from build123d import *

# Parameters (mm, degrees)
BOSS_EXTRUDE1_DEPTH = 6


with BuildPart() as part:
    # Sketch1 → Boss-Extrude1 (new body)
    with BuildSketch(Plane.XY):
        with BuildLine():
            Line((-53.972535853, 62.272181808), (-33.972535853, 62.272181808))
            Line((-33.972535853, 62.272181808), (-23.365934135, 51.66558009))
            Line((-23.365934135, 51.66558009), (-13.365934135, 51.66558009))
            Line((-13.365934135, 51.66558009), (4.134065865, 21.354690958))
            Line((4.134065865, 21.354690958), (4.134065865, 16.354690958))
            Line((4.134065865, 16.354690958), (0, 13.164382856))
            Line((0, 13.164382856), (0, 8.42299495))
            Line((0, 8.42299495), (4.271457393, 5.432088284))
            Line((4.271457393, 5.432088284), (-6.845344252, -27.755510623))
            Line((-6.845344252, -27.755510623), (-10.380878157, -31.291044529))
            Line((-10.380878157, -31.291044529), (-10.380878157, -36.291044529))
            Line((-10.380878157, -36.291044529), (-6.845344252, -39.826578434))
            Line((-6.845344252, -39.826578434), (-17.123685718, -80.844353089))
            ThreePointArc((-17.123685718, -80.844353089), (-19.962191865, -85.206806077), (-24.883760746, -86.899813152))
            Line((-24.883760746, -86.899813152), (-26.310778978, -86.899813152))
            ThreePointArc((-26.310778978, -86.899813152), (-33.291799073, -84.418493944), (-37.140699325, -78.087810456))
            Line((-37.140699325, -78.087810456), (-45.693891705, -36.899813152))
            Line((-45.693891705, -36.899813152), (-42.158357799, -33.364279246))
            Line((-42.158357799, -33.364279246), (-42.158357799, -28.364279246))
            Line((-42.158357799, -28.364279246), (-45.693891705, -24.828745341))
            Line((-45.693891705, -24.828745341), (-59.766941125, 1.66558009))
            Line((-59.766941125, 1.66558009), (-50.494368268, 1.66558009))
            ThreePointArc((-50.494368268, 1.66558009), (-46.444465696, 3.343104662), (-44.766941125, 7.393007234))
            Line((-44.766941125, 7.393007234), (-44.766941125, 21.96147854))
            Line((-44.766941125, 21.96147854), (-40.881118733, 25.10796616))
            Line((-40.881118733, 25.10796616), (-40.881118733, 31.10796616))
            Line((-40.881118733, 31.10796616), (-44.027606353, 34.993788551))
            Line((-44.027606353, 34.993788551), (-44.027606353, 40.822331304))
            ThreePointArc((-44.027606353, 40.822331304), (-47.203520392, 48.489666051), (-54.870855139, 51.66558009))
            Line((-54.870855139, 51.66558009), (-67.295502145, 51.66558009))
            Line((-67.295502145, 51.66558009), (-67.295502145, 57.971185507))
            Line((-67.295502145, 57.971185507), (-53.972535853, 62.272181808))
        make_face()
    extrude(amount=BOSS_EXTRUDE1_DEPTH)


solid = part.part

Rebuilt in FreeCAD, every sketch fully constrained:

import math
import FreeCAD as App
import Part
import Sketcher
Q = App.Units.Quantity

doc = App.newDocument("Part")
body = doc.addObject("PartDesign::Body", "Body")

# Sketch on XY plane
sketch1 = body.newObject("Sketcher::SketchObject", "Sketch")
sketch1.AttachmentSupport = (doc.getObject("XY_Plane"), [""])
sketch1.MapMode = "FlatFace"
sketch1.addGeometry([
    Part.LineSegment(App.Vector(-34, 62.3, 0), App.Vector(-54, 62.3, 0)),  # 0
    Part.LineSegment(App.Vector(-54, 62.3, 0), App.Vector(-67.3, 58, 0)),  # 1
    Part.LineSegment(App.Vector(-67.3, 58, 0), App.Vector(-67.3, 51.7, 0)),  # 2
    Part.LineSegment(App.Vector(-67.3, 51.7, 0), App.Vector(-54.9, 51.7, 0)),  # 3
    Part.ArcOfCircle(Part.Circle(App.Vector(-54.9, 40.8, 0), App.Vector(0, 0, 1), 10.8), math.radians(0), math.radians(90)),  # 4
    Part.LineSegment(App.Vector(-44, 40.8, 0), App.Vector(-44, 35, 0)),  # 5
    Part.LineSegment(App.Vector(-44, 35, 0), App.Vector(-40.9, 31.1, 0)),  # 6
    Part.LineSegment(App.Vector(-40.9, 31.1, 0), App.Vector(-40.9, 25.1, 0)),  # 7
    Part.LineSegment(App.Vector(-40.9, 25.1, 0), App.Vector(-44.8, 22, 0)),  # 8
    Part.LineSegment(App.Vector(-44.8, 22, 0), App.Vector(-44.8, 7.4, 0)),  # 9
    Part.ArcOfCircle(Part.Circle(App.Vector(-50.5, 7.4, 0), App.Vector(0, 0, 1), 5.7), math.radians(-90), math.radians(0)),  # 10
    Part.LineSegment(App.Vector(-50.5, 1.7, 0), App.Vector(-59.8, 1.7, 0)),  # 11
    Part.LineSegment(App.Vector(-59.8, 1.7, 0), App.Vector(-45.7, -24.8, 0)),  # 12
    Part.LineSegment(App.Vector(-45.7, -24.8, 0), App.Vector(-42.2, -28.4, 0)),  # 13
    Part.LineSegment(App.Vector(-42.2, -28.4, 0), App.Vector(-42.2, -33.4, 0)),  # 14
    Part.LineSegment(App.Vector(-42.2, -33.4, 0), App.Vector(-45.7, -36.9, 0)),  # 15
    Part.LineSegment(App.Vector(-45.7, -36.9, 0), App.Vector(-37.1, -78.1, 0)),  # 16
    Part.ArcOfCircle(Part.Circle(App.Vector(-26.3, -75.8, 0), App.Vector(0, 0, 1), 11.1), math.radians(-168), math.radians(-90)),  # 17
    Part.LineSegment(App.Vector(-26.3, -86.9, 0), App.Vector(-24.9, -86.9, 0)),  # 18
    Part.ArcOfCircle(Part.Circle(App.Vector(-24.9, -78.9, 0), App.Vector(0, 0, 1), 8), math.radians(-90), math.radians(-14)),  # 19
    Part.LineSegment(App.Vector(-17.1, -80.8, 0), App.Vector(-6.8, -39.8, 0)),  # 20
    Part.LineSegment(App.Vector(-6.8, -39.8, 0), App.Vector(-10.4, -36.3, 0)),  # 21
    Part.LineSegment(App.Vector(-10.4, -36.3, 0), App.Vector(-10.4, -31.3, 0)),  # 22
    Part.LineSegment(App.Vector(-10.4, -31.3, 0), App.Vector(-6.8, -27.8, 0)),  # 23
    Part.LineSegment(App.Vector(-6.8, -27.8, 0), App.Vector(4.3, 5.4, 0)),  # 24
    Part.LineSegment(App.Vector(4.3, 5.4, 0), App.Vector(0, 8.4, 0)),  # 25
    Part.LineSegment(App.Vector(0, 8.4, 0), App.Vector(0, 13.2, 0)),  # 26
    Part.LineSegment(App.Vector(0, 13.2, 0), App.Vector(4.1, 16.4, 0)),  # 27
    Part.LineSegment(App.Vector(4.1, 16.4, 0), App.Vector(4.1, 21.4, 0)),  # 28
    Part.LineSegment(App.Vector(4.1, 21.4, 0), App.Vector(-13.4, 51.7, 0)),  # 29
    Part.LineSegment(App.Vector(-13.4, 51.7, 0), App.Vector(-23.4, 51.7, 0)),  # 30
    Part.LineSegment(App.Vector(-23.4, 51.7, 0), App.Vector(-34, 62.3, 0)),  # 31
], False)
sketch1.addConstraint([
    Sketcher.Constraint("Coincident", 0, 2, 1, 1),
    Sketcher.Constraint("Coincident", 1, 2, 2, 1),
    Sketcher.Constraint("Coincident", 2, 2, 3, 1),
    Sketcher.Constraint("Tangent", 3, 2, 4, 2),
    Sketcher.Constraint("Tangent", 4, 1, 5, 1),
    Sketcher.Constraint("Coincident", 5, 2, 6, 1),
    Sketcher.Constraint("Coincident", 6, 2, 7, 1),
    Sketcher.Constraint("Coincident", 7, 2, 8, 1),
    Sketcher.Constraint("Coincident", 8, 2, 9, 1),
    Sketcher.Constraint("Tangent", 9, 2, 10, 2),
    Sketcher.Constraint("Tangent", 10, 1, 11, 1),
    Sketcher.Constraint("Coincident", 11, 2, 12, 1),
    Sketcher.Constraint("Coincident", 12, 2, 13, 1),
    Sketcher.Constraint("Coincident", 13, 2, 14, 1),
    Sketcher.Constraint("Coincident", 14, 2, 15, 1),
    Sketcher.Constraint("Coincident", 15, 2, 16, 1),
    Sketcher.Constraint("Tangent", 16, 2, 17, 1),
    Sketcher.Constraint("Tangent", 17, 2, 18, 1),
    Sketcher.Constraint("Tangent", 18, 2, 19, 1),
    Sketcher.Constraint("Tangent", 19, 2, 20, 1),
    Sketcher.Constraint("Coincident", 20, 2, 21, 1),
    Sketcher.Constraint("Coincident", 21, 2, 22, 1),
    Sketcher.Constraint("Coincident", 22, 2, 23, 1),
    Sketcher.Constraint("Coincident", 23, 2, 24, 1),
    Sketcher.Constraint("Coincident", 24, 2, 25, 1),
    Sketcher.Constraint("Coincident", 25, 2, 26, 1),
    Sketcher.Constraint("Coincident", 26, 2, 27, 1),
    Sketcher.Constraint("Coincident", 27, 2, 28, 1),
    Sketcher.Constraint("Coincident", 28, 2, 29, 1),
    Sketcher.Constraint("Coincident", 29, 2, 30, 1),
    Sketcher.Constraint("Coincident", 30, 2, 31, 1),
    Sketcher.Constraint("Coincident", 31, 2, 0, 1),
    Sketcher.Constraint("Horizontal", 0),
    Sketcher.Constraint("Vertical", 2),
    Sketcher.Constraint("Horizontal", 3),
    Sketcher.Constraint("Vertical", 5),
    Sketcher.Constraint("Vertical", 7),
    Sketcher.Constraint("Vertical", 9),
    Sketcher.Constraint("Horizontal", 11),
    Sketcher.Constraint("Vertical", 14),
    Sketcher.Constraint("Horizontal", 18),
    Sketcher.Constraint("Vertical", 22),
    Sketcher.Constraint("Vertical", 26),
    Sketcher.Constraint("Vertical", 28),
    Sketcher.Constraint("Horizontal", 30),
    Sketcher.Constraint("PointOnObject", 25, 2, -2),
    Sketcher.Constraint("Perpendicular", 6, 8),
    Sketcher.Constraint("Perpendicular", 13, 15),
    Sketcher.Constraint("Perpendicular", 15, 21),
    Sketcher.Constraint("Perpendicular", 21, 23),
    Sketcher.Constraint("Perpendicular", 23, 31),
    Sketcher.Constraint("Horizontal", 3, 2, 29, 2),
    Sketcher.Constraint("Vertical", 12, 2, 15, 2),
    Sketcher.Constraint("Vertical", 20, 2, 23, 2),
    Sketcher.Constraint("Equal", 14, 22),
    Sketcher.Constraint("Equal", 22, 28),
    Sketcher.Constraint("Equal", 6, 8),
    Sketcher.Constraint("Equal", 8, 13),
    Sketcher.Constraint("Equal", 13, 15),
    Sketcher.Constraint("Equal", 15, 21),
    Sketcher.Constraint("Equal", 24, 29),
    Sketcher.Constraint("Radius", 19, Q("8 mm")),
    Sketcher.Constraint("DistanceX", 0, 2, 0, 1, Q("20 mm")),
    Sketcher.Constraint("DistanceX", 30, 2, 30, 1, Q("10 mm")),
    Sketcher.Constraint("DistanceY", 7, 2, 7, 1, Q("6 mm")),
    Sketcher.Constraint("DistanceY", 14, 2, 14, 1, Q("5 mm")),
    Sketcher.Constraint("Angle", 25, Q("145 deg")),
    Sketcher.Constraint("Angle", 29, Q("120 deg")),
    Sketcher.Constraint("Distance", 1, Q("14 mm")),
    Sketcher.Constraint("Distance", 6, Q("5 mm")),
    Sketcher.Constraint("Distance", 12, Q("30 mm")),
    Sketcher.Constraint("Distance", 24, Q("35 mm")),
    Sketcher.Constraint("Distance", 31, Q("15 mm")),
    Sketcher.Constraint("DistanceX", 11, 2, 9, 2, Q("15 mm")),
    Sketcher.Constraint("DistanceY", 17, 2, 15, 2, Q("50 mm")),
    Sketcher.Constraint("Radius", 4, Q("10.843249 mm")),
    Sketcher.Constraint("Radius", 17, Q("11.060968 mm")),
    Sketcher.Constraint("Radius", 10, Q("5.727427 mm")),
    Sketcher.Constraint("DistanceY", 19, 3, 1, 2, Q("136.870999 mm")),
    Sketcher.Constraint("DistanceX", 18, 1, 18, 2, Q("1.427018 mm")),
    Sketcher.Constraint("DistanceY", 9, 2, 9, 1, Q("14.568471 mm")),
    Sketcher.Constraint("DistanceX", 16, 2, -1, 1, Q("37.140699 mm")),
    Sketcher.Constraint("DistanceY", 20, 2, 14, 2, Q("6.462299 mm")),
    Sketcher.Constraint("DistanceX", 23, 2, 24, 2, Q("11.116802 mm")),
    Sketcher.Constraint("DistanceX", 9, 2, 24, 2, Q("49.038399 mm")),
    Sketcher.Constraint("DistanceY", 23, 2, 27, 2, Q("44.110202 mm")),
    Sketcher.Constraint("Distance", 16, Q("42.066712 mm")),
    Sketcher.Constraint("Distance", 27, Q("5.221931 mm")),
    Sketcher.Constraint("DistanceX", 3, 1, 3, 2, Q("12.424647 mm")),
    Sketcher.Constraint("DistanceY", 5, 2, 5, 1, Q("5.828543 mm")),
    Sketcher.Constraint("DistanceY", 26, 1, 26, 2, Q("4.741388 mm")),
    Sketcher.Constraint("DistanceY", -1, 1, 4, 3, Q("40.822331 mm")),
])
pad1 = body.newObject("PartDesign::Pad", "Pad")
pad1.Profile = sketch1
pad1.Length = 6

doc.recompute()
